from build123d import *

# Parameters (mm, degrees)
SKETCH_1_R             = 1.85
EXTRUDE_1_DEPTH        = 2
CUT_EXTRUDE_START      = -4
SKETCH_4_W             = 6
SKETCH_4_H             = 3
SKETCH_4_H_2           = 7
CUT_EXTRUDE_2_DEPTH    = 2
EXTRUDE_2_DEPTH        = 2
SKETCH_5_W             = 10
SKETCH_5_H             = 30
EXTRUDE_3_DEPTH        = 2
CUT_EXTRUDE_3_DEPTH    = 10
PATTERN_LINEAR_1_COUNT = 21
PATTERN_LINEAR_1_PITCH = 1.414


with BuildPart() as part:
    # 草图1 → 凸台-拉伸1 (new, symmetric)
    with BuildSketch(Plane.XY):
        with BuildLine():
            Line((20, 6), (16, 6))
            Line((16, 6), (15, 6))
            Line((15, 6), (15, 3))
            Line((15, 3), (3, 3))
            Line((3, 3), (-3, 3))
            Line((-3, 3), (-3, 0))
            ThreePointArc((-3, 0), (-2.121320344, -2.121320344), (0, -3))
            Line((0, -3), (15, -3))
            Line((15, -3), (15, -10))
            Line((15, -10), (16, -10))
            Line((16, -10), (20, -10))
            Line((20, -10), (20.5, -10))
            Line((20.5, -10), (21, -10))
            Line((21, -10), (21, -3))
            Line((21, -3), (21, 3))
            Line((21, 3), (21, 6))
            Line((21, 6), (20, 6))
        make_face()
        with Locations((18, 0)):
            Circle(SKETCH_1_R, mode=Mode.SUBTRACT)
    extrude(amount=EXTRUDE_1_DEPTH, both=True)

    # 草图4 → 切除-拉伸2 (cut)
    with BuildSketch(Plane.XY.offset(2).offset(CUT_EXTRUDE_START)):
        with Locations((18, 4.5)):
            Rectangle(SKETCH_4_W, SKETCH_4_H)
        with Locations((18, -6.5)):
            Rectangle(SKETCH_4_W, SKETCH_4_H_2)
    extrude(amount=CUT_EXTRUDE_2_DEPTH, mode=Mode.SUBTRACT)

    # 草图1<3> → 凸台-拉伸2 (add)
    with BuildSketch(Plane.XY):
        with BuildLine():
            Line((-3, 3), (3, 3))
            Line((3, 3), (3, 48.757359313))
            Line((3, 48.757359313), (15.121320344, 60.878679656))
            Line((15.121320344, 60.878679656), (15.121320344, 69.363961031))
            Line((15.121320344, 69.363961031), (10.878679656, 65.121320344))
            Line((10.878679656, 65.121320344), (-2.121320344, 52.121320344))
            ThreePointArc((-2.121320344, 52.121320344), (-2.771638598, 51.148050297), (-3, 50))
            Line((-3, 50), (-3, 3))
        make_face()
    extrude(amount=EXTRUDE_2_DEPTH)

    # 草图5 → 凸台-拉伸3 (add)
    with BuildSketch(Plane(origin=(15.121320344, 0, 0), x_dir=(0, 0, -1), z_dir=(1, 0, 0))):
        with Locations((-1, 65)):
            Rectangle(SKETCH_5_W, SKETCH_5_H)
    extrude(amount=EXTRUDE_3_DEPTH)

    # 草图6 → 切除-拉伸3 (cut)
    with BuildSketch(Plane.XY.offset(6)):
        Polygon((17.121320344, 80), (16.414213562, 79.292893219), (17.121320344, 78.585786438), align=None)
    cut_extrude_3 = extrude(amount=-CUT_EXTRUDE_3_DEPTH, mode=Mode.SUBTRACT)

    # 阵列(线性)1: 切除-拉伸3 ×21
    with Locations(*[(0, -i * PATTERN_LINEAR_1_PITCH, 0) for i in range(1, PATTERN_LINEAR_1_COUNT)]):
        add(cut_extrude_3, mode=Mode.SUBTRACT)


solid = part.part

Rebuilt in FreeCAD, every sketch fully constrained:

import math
import FreeCAD as App
import Part
import Sketcher
Q = App.Units.Quantity

doc = App.newDocument("Part")
body = doc.addObject("PartDesign::Body", "Body")

sketch1 = body.newObject("Sketcher::SketchObject", "Sketch")
sketch1.AttachmentSupport = (doc.getObject("XY_Plane"), [""])
sketch1.MapMode = "FlatFace"
sketch1.addGeometry([
    Part.LineSegment(App.Vector(15, 6, 0), App.Vector(15, 3, 0)),
    Part.LineSegment(App.Vector(15, 3, 0), App.Vector(-3, 3, 0)),
    Part.LineSegment(App.Vector(-3, 3, 0), App.Vector(-3, 0, 0)),
    Part.ArcOfCircle(Part.Circle(App.Vector(0, 0, 0), App.Vector(0, 0, 1), 3), math.radians(180), math.radians(270)),
    Part.LineSegment(App.Vector(0, -3, 0), App.Vector(15, -3, 0)),
    Part.LineSegment(App.Vector(15, -3, 0), App.Vector(15, -10, 0)),
    Part.LineSegment(App.Vector(15, -10, 0), App.Vector(21, -10, 0)),
    Part.LineSegment(App.Vector(21, -10, 0), App.Vector(21, 6, 0)),
    Part.LineSegment(App.Vector(21, 6, 0), App.Vector(15, 6, 0)),
    Part.Circle(App.Vector(18, 0, 0), App.Vector(0, 0, 1), 1.9),
], False)
sketch1.addConstraint([
    Sketcher.Constraint("Coincident", 0, 2, 1, 1),
    Sketcher.Constraint("Coincident", 1, 2, 2, 1),
    Sketcher.Constraint("Tangent", 2, 2, 3, 1),
    Sketcher.Constraint("Tangent", 3, 2, 4, 1),
    Sketcher.Constraint("Coincident", 4, 2, 5, 1),
    Sketcher.Constraint("Coincident", 5, 2, 6, 1),
    Sketcher.Constraint("Coincident", 6, 2, 7, 1),
    Sketcher.Constraint("Coincident", 7, 2, 8, 1),
    Sketcher.Constraint("Coincident", 8, 2, 0, 1),
    Sketcher.Constraint("Vertical", 0),
    Sketcher.Constraint("Horizontal", 1),
    Sketcher.Constraint("Vertical", 2),
    Sketcher.Constraint("Horizontal", 4),
    Sketcher.Constraint("Vertical", 5),
    Sketcher.Constraint("Horizontal", 6),
    Sketcher.Constraint("Vertical", 7),
    Sketcher.Constraint("Horizontal", 8),
    Sketcher.Constraint("Coincident", 3, 3, -1, 1),
    Sketcher.Constraint("Symmetric", 0, 2, 4, 2, -1),
    Sketcher.Constraint("PointOnObject", 9, 3, -1),
    Sketcher.Constraint("Equal", 0, 2),
    Sketcher.Constraint("Radius", 3, Q("3 mm")),
    Sketcher.Constraint("Diameter", 9, Q("3.7 mm")),
    Sketcher.Constraint("DistanceX", 1, 2, 1, 1, Q("18 mm")),
    Sketcher.Constraint("DistanceX", 6, 1, 6, 2, Q("6 mm")),
    Sketcher.Constraint("DistanceY", 5, 2, 5, 1, Q("7 mm")),
    Sketcher.Constraint("DistanceX", -1, 1, 9, 3, Q("18 mm")),
])
pad1 = body.newObject("PartDesign::Pad", "Pad")
pad1.Profile = sketch1
pad1.Length = 4
pad1.Midplane = True

sketch2 = body.newObject("Sketcher::SketchObject", "Sketch001")
sketch2.AttachmentSupport = (doc.getObject("XY_Plane"), [""])
sketch2.MapMode = "FlatFace"
sketch2.AttachmentOffset = App.Placement(App.Vector(0, 0, -2), App.Rotation())
sketch2.addGeometry([
    Part.LineSegment(App.Vector(15, 6, 0), App.Vector(15, 3, 0)),
    Part.LineSegment(App.Vector(15, 3, 0), App.Vector(21, 3, 0)),
    Part.LineSegment(App.Vector(21, 3, 0), App.Vector(21, 6, 0)),
    Part.LineSegment(App.Vector(21, 6, 0), App.Vector(15, 6, 0)),
    Part.LineSegment(App.Vector(15, -3, 0), App.Vector(15, -10, 0)),
    Part.LineSegment(App.Vector(15, -10, 0), App.Vector(21, -10, 0)),
    Part.LineSegment(App.Vector(21, -10, 0), App.Vector(21, -3, 0)),
    Part.LineSegment(App.Vector(21, -3, 0), App.Vector(15, -3, 0)),
], False)
sketch2.addConstraint([
    Sketcher.Constraint("Coincident", 0, 2, 1, 1),
    Sketcher.Constraint("Coincident", 1, 2, 2, 1),
    Sketcher.Constraint("Coincident", 2, 2, 3, 1),
    Sketcher.Constraint("Coincident", 3, 2, 0, 1),
    Sketcher.Constraint("Coincident", 4, 2, 5, 1),
    Sketcher.Constraint("Coincident", 5, 2, 6, 1),
    Sketcher.Constraint("Coincident", 6, 2, 7, 1),
    Sketcher.Constraint("Coincident", 7, 2, 4, 1),
    Sketcher.Constraint("Vertical", 0),
    Sketcher.Constraint("Horizontal", 1),
    Sketcher.Constraint("Vertical", 2),
    Sketcher.Constraint("Horizontal", 3),
    Sketcher.Constraint("Vertical", 4),
    Sketcher.Constraint("Horizontal", 5),
    Sketcher.Constraint("Vertical", 6),
    Sketcher.Constraint("Horizontal", 7),
    Sketcher.Constraint("Symmetric", 1, 2, 6, 2, -1),
    Sketcher.Constraint("Vertical", 3, 2, 4, 2),
    Sketcher.Constraint("DistanceX", 1, 1, 1, 2, Q("6 mm")),
    Sketcher.Constraint("DistanceY", 0, 2, 0, 1, Q("3 mm")),
    Sketcher.Constraint("DistanceY", 4, 2, 4, 1, Q("7 mm")),
    Sketcher.Constraint("DistanceX", -1, 1, 0, 2, Q("15 mm")),
    Sketcher.Constraint("DistanceY", -1, 1, 0, 2, Q("3 mm")),
])
pocket1 = body.newObject("PartDesign::Pocket", "Pocket")
pocket1.Profile = sketch2
pocket1.Length = 2
pocket1.Reversed = True

sketch3 = body.newObject("Sketcher::SketchObject", "Sketch002")
sketch3.AttachmentSupport = (doc.getObject("XY_Plane"), [""])
sketch3.MapMode = "FlatFace"
sketch3.addGeometry([
    Part.LineSegment(App.Vector(-3, 3, 0), App.Vector(3, 3, 0)),
    Part.LineSegment(App.Vector(3, 3, 0), App.Vector(3, 48.8, 0)),
    Part.LineSegment(App.Vector(3, 48.8, 0), App.Vector(15.1, 60.9, 0)),
    Part.LineSegment(App.Vector(15.1, 60.9, 0), App.Vector(15.1, 69.4, 0)),
    Part.LineSegment(App.Vector(15.1, 69.4, 0), App.Vector(10.9, 65.1, 0)),
    Part.LineSegment(App.Vector(10.9, 65.1, 0), App.Vector(-2.1, 52.1, 0)),
    Part.ArcOfCircle(Part.Circle(App.Vector(0, 50, 0), App.Vector(0, 0, 1), 3), math.radians(135), math.radians(180)),
    Part.LineSegment(App.Vector(-3, 50, 0), App.Vector(-3, 3, 0)),
], False)
sketch3.addConstraint([
    Sketcher.Constraint("Coincident", 0, 2, 1, 1),
    Sketcher.Constraint("Coincident", 1, 2, 2, 1),
    Sketcher.Constraint("Coincident", 2, 2, 3, 1),
    Sketcher.Constraint("Coincident", 3, 2, 4, 1),
    Sketcher.Constraint("Coincident", 4, 2, 5, 1),
    Sketcher.Constraint("Tangent", 5, 2, 6, 1),
    Sketcher.Constraint("Tangent", 6, 2, 7, 1),
    Sketcher.Constraint("Coincident", 7, 2, 0, 1),
    Sketcher.Constraint("Horizontal", 0),
    Sketcher.Constraint("Vertical", 1),
    Sketcher.Constraint("Vertical", 3),
    Sketcher.Constraint("Vertical", 7),
    Sketcher.Constraint("PointOnObject", 6, 3, -2),
    Sketcher.Constraint("Parallel", 2, 4),
    Sketcher.Constraint("Parallel", 4, 5),
    Sketcher.Constraint("Radius", 6, Q("3 mm")),
    Sketcher.Constraint("DistanceX", 0, 1, 0, 2, Q("6 mm")),
    Sketcher.Constraint("DistanceY", 7, 2, 7, 1, Q("47 mm")),
    Sketcher.Constraint("Angle", 2, Q("45 deg")),
    Sketcher.Constraint("Distance", 4, Q("6 mm")),
    Sketcher.Constraint("DistanceY", -1, 1, 6, 3, Q("50 mm")),
    Sketcher.Constraint("DistanceX", 5, 2, 4, 2, Q("13 mm")),
    Sketcher.Constraint("DistanceY", 1, 1, 1, 2, Q("45.757359 mm")),
])
pad2 = body.newObject("PartDesign::Pad", "Pad001")
pad2.Profile = sketch3
pad2.Length = 2

sketch4 = body.newObject("Sketcher::SketchObject", "Sketch003")
sketch4.AttachmentSupport = (doc.getObject("YZ_Plane"), [""])
sketch4.MapMode = "FlatFace"
sketch4.AttachmentOffset = App.Placement(App.Vector(0, 0, 15.12132), App.Rotation())
sketch4.addGeometry([
    Part.LineSegment(App.Vector(80, 6, 0), App.Vector(50, 6, 0)),
    Part.LineSegment(App.Vector(50, 6, 0), App.Vector(50, -4, 0)),
    Part.LineSegment(App.Vector(50, -4, 0), App.Vector(80, -4, 0)),
    Part.LineSegment(App.Vector(80, -4, 0), App.Vector(80, 6, 0)),
], False)
sketch4.addConstraint([
    Sketcher.Constraint("Coincident", 0, 2, 1, 1),
    Sketcher.Constraint("Coincident", 1, 2, 2, 1),
    Sketcher.Constraint("Coincident", 2, 2, 3, 1),
    Sketcher.Constraint("Coincident", 3, 2, 0, 1),
    Sketcher.Constraint("Horizontal", 0),
    Sketcher.Constraint("Vertical", 1),
    Sketcher.Constraint("Horizontal", 2),
    Sketcher.Constraint("Vertical", 3),
    Sketcher.Constraint("DistanceX", 0, 2, 0, 1, Q("30 mm")),
    Sketcher.Constraint("DistanceY", 1, 2, 1, 1, Q("10 mm")),
    Sketcher.Constraint("DistanceX", -1, 1, 0, 2, Q("50 mm")),
    Sketcher.Constraint("DistanceY", -1, 1, 0, 2, Q("6 mm")),
])
pad3 = body.newObject("PartDesign::Pad", "Pad002")
pad3.Profile = sketch4
pad3.Length = 2

sketch5 = body.newObject("Sketcher::SketchObject", "Sketch004")
sketch5.AttachmentSupport = (doc.getObject("XY_Plane"), [""])
sketch5.MapMode = "FlatFace"
sketch5.AttachmentOffset = App.Placement(App.Vector(0, 0, 6), App.Rotation())
sketch5.addGeometry([
    Part.LineSegment(App.Vector(17.1, 80, 0), App.Vector(16.4, 79.3, 0)),
    Part.LineSegment(App.Vector(16.4, 79.3, 0), App.Vector(17.1, 78.6, 0)),
    Part.LineSegment(App.Vector(17.1, 78.6, 0), App.Vector(17.1, 80, 0)),
], False)
sketch5.addConstraint([
    Sketcher.Constraint("Coincident", 0, 2, 1, 1),
    Sketcher.Constraint("Coincident", 1, 2, 2, 1),
    Sketcher.Constraint("Coincident", 2, 2, 0, 1),
    Sketcher.Constraint("Vertical", 2),
    Sketcher.Constraint("Perpendicular", 0, 1),
    Sketcher.Constraint("Equal", 0, 1),
    Sketcher.Constraint("Distance", 0, Q("1 mm")),
    Sketcher.Constraint("DistanceY", -1, 1, 2, 2, Q("80 mm")),
    Sketcher.Constraint("DistanceX", -1, 1, 1, 2, Q("17.12132 mm")),
])
pocket2 = body.newObject("PartDesign::Pocket", "Pocket001")
pocket2.Profile = sketch5
pocket2.Length = 10
doc.recompute()

linearpattern = body.newObject("PartDesign::LinearPattern", "LinearPattern")
linearpattern.Originals = [pocket2]
linearpattern.Direction = (doc.getObject("Y_Axis"), [""])
linearpattern.Mode = "offset"
linearpattern.Offset = 1.414
linearpattern.Occurrences = 21
linearpattern.Reversed = True
body.Tip = linearpattern

doc.recompute()
